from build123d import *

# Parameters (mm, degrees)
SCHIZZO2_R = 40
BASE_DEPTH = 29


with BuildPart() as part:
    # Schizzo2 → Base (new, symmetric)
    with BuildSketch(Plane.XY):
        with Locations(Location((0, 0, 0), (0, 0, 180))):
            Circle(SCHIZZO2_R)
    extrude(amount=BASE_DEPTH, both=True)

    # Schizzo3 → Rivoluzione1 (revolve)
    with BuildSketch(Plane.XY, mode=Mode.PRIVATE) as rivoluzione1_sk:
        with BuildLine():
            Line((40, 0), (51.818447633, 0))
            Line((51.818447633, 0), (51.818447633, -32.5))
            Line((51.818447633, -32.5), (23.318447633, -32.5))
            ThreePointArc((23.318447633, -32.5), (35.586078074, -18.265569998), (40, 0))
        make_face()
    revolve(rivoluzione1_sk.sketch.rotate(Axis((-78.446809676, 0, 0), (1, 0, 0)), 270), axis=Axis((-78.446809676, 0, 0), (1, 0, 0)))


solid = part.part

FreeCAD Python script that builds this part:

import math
import FreeCAD as App
import Part
import Sketcher
from FreeCAD import Vector

doc = App.newDocument("Part")
body = doc.addObject("PartDesign::Body", "Body")

# Sketch on XY plane
sketch1 = body.newObject("Sketcher::SketchObject", "Sketch")
sketch1.AttachmentSupport = (doc.getObject("XY_Plane"), [""])
sketch1.MapMode = "FlatFace"
sketch1.addGeometry(Part.Circle(Vector(0, 0, 0), Vector(0, 0, 1), 40), False)
sketch1.addConstraint(Sketcher.Constraint("Coincident", 0, 3, -1, 1))
sketch1.addConstraint(Sketcher.Constraint("Diameter", 0, 80.0))
pad1 = body.newObject("PartDesign::Pad", "Pad")
pad1.Profile = sketch1
pad1.Length = 58
pad1.Midplane = True

# Sketch on XY plane
sketch2 = body.newObject("Sketcher::SketchObject", "Sketch001")
sketch2.AttachmentSupport = (doc.getObject("XY_Plane"), [""])
sketch2.MapMode = "FlatFace"
sketch2.addGeometry(Part.LineSegment(Vector(52, 0, 0), Vector(40, 0, 0)), False)
sketch2.addGeometry(Part.ArcOfCircle(Part.Circle(Vector(0, 0, 0), Vector(0, 0, 1), 40), math.radians(-54), math.radians(0)), False)
sketch2.addGeometry(Part.LineSegment(Vector(23, -32, 0), Vector(52, -32, 0)), False)
sketch2.addGeometry(Part.LineSegment(Vector(52, -32, 0), Vector(52, 0, 0)), False)
sketch2.addConstraint(Sketcher.Constraint("Coincident", 0, 2, 1, 2))
sketch2.addConstraint(Sketcher.Constraint("Coincident", 1, 1, 2, 1))
sketch2.addConstraint(Sketcher.Constraint("Coincident", 2, 2, 3, 1))
sketch2.addConstraint(Sketcher.Constraint("Coincident", 3, 2, 0, 1))
sketch2.addConstraint(Sketcher.Constraint("Horizontal", 0))
sketch2.addConstraint(Sketcher.Constraint("Horizontal", 2))
sketch2.addConstraint(Sketcher.Constraint("Vertical", 3))
sketch2.addConstraint(Sketcher.Constraint("Coincident", 1, 3, -1, 1))
sketch2.addConstraint(Sketcher.Constraint("PointOnObject", 0, 2, -1))
sketch2.addConstraint(Sketcher.Constraint("Radius", 1, 40.0))
sketch2.addConstraint(Sketcher.Constraint("DistanceX", 2, 1, 2, 2, 28.5))
sketch2.addConstraint(Sketcher.Constraint("DistanceY", 3, 1, 3, 2, 32.5))
revolution = body.newObject("PartDesign::Revolution", "Revolution")
revolution.Profile = sketch2
revolution.ReferenceAxis = (sketch2, ["H_Axis"])
revolution.Angle = 360

doc.recompute()
